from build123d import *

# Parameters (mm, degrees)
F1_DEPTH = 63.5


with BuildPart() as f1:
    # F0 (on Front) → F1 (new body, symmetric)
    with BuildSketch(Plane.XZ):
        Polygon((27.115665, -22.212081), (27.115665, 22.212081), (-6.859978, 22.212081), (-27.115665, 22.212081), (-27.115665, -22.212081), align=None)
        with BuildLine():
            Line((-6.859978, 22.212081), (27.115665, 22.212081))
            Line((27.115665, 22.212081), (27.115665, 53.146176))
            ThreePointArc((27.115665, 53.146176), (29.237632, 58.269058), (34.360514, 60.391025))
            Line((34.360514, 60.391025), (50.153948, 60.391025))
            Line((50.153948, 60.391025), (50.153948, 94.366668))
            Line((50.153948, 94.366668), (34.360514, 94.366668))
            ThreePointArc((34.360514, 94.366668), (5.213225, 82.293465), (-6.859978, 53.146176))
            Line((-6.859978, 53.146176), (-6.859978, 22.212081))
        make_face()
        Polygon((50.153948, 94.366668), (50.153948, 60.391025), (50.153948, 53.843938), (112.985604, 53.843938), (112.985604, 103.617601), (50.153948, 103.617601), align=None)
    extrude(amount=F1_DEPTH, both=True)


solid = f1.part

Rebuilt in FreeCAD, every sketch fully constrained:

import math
import FreeCAD as App
import Part
import Sketcher
from FreeCAD import Vector
Q = App.Units.Quantity

doc = App.newDocument("Part")
body = doc.addObject("PartDesign::Body", "Body")

# Sketch on XZ plane
sketch1 = doc.addObject("Sketcher::SketchObject", "Sketch")
body.addObject(sketch1)
sketch1.AttachmentSupport = (doc.XZ_Plane, [""])
sketch1.MapMode = "FlatFace"
sketch1.addGeometry([
    Part.LineSegment(Vector(27, -22, 0), Vector(27, 53, 0)),  # 0
    Part.ArcOfCircle(Part.Circle(Vector(34, 53, 0), Vector(0, 0, 1), 7), math.radians(90), math.radians(180)),  # 1
    Part.LineSegment(Vector(34, 60, 0), Vector(50, 60, 0)),  # 2
    Part.LineSegment(Vector(50, 60, 0), Vector(50, 54, 0)),  # 3
    Part.LineSegment(Vector(50, 54, 0), Vector(113, 54, 0)),  # 4
    Part.LineSegment(Vector(113, 54, 0), Vector(113, 104, 0)),  # 5
    Part.LineSegment(Vector(113, 104, 0), Vector(50, 104, 0)),  # 6
    Part.LineSegment(Vector(50, 104, 0), Vector(50, 94, 0)),  # 7
    Part.LineSegment(Vector(50, 94, 0), Vector(34, 94, 0)),  # 8
    Part.ArcOfCircle(Part.Circle(Vector(34, 53, 0), Vector(0, 0, 1), 41), math.radians(90), math.radians(180)),  # 9
    Part.LineSegment(Vector(-7, 53, 0), Vector(-7, 22, 0)),  # 10
    Part.LineSegment(Vector(-7, 22, 0), Vector(-27, 22, 0)),  # 11
    Part.LineSegment(Vector(-27, 22, 0), Vector(-27, -22, 0)),  # 12
    Part.LineSegment(Vector(-27, -22, 0), Vector(27, -22, 0)),  # 13
], False)
sketch1.addConstraint([
    Sketcher.Constraint("Tangent", 0, 2, 1, 2),
    Sketcher.Constraint("Tangent", 1, 1, 2, 1),
    Sketcher.Constraint("Coincident", 2, 2, 3, 1),
    Sketcher.Constraint("Coincident", 3, 2, 4, 1),
    Sketcher.Constraint("Coincident", 4, 2, 5, 1),
    Sketcher.Constraint("Coincident", 5, 2, 6, 1),
    Sketcher.Constraint("Coincident", 6, 2, 7, 1),
    Sketcher.Constraint("Coincident", 7, 2, 8, 1),
    Sketcher.Constraint("Tangent", 8, 2, 9, 1),
    Sketcher.Constraint("Tangent", 9, 2, 10, 1),
    Sketcher.Constraint("Coincident", 10, 2, 11, 1),
    Sketcher.Constraint("Coincident", 11, 2, 12, 1),
    Sketcher.Constraint("Coincident", 12, 2, 13, 1),
    Sketcher.Constraint("Coincident", 13, 2, 0, 1),
    Sketcher.Constraint("Vertical", 0),
    Sketcher.Constraint("Horizontal", 2),
    Sketcher.Constraint("Vertical", 3),
    Sketcher.Constraint("Horizontal", 4),
    Sketcher.Constraint("Vertical", 5),
    Sketcher.Constraint("Horizontal", 6),
    Sketcher.Constraint("Vertical", 7),
    Sketcher.Constraint("Horizontal", 8),
    Sketcher.Constraint("Vertical", 10),
    Sketcher.Constraint("Horizontal", 11),
    Sketcher.Constraint("Vertical", 12),
    Sketcher.Constraint("Horizontal", 13),
    Sketcher.Constraint("Coincident", 9, 3, 1, 3),
    Sketcher.Constraint("Symmetric", 11, 2, 13, 2, -1, 1),
    Sketcher.Constraint("Vertical", 3, 2, 6, 2),
    Sketcher.Constraint("Radius", 1, 7.244849),
    Sketcher.Constraint("Radius", 9, 41.220493),
    Sketcher.Constraint("DistanceX", 13, 1, 13, 2, 54.23133),
    Sketcher.Constraint("DistanceY", -1, 1, 5, 2, 103.617601),
    Sketcher.Constraint("DistanceX", 2, 1, 2, 2, 15.793434),
    Sketcher.Constraint("DistanceX", 4, 1, 4, 2, 62.831656),
    Sketcher.Constraint("DistanceY", 0, 1, 0, 2, 75.358257),
    Sketcher.Constraint("DistanceY", 3, 2, 3, 1, 6.547087),
    Sketcher.Constraint("DistanceY", 5, 1, 5, 2, 49.773663),
])
pad1 = doc.addObject("PartDesign::Pad", "Pad")
body.addObject(pad1)
pad1.Profile = sketch1
pad1.Length = Q("5 in")
pad1.Midplane = True

doc.recompute()
